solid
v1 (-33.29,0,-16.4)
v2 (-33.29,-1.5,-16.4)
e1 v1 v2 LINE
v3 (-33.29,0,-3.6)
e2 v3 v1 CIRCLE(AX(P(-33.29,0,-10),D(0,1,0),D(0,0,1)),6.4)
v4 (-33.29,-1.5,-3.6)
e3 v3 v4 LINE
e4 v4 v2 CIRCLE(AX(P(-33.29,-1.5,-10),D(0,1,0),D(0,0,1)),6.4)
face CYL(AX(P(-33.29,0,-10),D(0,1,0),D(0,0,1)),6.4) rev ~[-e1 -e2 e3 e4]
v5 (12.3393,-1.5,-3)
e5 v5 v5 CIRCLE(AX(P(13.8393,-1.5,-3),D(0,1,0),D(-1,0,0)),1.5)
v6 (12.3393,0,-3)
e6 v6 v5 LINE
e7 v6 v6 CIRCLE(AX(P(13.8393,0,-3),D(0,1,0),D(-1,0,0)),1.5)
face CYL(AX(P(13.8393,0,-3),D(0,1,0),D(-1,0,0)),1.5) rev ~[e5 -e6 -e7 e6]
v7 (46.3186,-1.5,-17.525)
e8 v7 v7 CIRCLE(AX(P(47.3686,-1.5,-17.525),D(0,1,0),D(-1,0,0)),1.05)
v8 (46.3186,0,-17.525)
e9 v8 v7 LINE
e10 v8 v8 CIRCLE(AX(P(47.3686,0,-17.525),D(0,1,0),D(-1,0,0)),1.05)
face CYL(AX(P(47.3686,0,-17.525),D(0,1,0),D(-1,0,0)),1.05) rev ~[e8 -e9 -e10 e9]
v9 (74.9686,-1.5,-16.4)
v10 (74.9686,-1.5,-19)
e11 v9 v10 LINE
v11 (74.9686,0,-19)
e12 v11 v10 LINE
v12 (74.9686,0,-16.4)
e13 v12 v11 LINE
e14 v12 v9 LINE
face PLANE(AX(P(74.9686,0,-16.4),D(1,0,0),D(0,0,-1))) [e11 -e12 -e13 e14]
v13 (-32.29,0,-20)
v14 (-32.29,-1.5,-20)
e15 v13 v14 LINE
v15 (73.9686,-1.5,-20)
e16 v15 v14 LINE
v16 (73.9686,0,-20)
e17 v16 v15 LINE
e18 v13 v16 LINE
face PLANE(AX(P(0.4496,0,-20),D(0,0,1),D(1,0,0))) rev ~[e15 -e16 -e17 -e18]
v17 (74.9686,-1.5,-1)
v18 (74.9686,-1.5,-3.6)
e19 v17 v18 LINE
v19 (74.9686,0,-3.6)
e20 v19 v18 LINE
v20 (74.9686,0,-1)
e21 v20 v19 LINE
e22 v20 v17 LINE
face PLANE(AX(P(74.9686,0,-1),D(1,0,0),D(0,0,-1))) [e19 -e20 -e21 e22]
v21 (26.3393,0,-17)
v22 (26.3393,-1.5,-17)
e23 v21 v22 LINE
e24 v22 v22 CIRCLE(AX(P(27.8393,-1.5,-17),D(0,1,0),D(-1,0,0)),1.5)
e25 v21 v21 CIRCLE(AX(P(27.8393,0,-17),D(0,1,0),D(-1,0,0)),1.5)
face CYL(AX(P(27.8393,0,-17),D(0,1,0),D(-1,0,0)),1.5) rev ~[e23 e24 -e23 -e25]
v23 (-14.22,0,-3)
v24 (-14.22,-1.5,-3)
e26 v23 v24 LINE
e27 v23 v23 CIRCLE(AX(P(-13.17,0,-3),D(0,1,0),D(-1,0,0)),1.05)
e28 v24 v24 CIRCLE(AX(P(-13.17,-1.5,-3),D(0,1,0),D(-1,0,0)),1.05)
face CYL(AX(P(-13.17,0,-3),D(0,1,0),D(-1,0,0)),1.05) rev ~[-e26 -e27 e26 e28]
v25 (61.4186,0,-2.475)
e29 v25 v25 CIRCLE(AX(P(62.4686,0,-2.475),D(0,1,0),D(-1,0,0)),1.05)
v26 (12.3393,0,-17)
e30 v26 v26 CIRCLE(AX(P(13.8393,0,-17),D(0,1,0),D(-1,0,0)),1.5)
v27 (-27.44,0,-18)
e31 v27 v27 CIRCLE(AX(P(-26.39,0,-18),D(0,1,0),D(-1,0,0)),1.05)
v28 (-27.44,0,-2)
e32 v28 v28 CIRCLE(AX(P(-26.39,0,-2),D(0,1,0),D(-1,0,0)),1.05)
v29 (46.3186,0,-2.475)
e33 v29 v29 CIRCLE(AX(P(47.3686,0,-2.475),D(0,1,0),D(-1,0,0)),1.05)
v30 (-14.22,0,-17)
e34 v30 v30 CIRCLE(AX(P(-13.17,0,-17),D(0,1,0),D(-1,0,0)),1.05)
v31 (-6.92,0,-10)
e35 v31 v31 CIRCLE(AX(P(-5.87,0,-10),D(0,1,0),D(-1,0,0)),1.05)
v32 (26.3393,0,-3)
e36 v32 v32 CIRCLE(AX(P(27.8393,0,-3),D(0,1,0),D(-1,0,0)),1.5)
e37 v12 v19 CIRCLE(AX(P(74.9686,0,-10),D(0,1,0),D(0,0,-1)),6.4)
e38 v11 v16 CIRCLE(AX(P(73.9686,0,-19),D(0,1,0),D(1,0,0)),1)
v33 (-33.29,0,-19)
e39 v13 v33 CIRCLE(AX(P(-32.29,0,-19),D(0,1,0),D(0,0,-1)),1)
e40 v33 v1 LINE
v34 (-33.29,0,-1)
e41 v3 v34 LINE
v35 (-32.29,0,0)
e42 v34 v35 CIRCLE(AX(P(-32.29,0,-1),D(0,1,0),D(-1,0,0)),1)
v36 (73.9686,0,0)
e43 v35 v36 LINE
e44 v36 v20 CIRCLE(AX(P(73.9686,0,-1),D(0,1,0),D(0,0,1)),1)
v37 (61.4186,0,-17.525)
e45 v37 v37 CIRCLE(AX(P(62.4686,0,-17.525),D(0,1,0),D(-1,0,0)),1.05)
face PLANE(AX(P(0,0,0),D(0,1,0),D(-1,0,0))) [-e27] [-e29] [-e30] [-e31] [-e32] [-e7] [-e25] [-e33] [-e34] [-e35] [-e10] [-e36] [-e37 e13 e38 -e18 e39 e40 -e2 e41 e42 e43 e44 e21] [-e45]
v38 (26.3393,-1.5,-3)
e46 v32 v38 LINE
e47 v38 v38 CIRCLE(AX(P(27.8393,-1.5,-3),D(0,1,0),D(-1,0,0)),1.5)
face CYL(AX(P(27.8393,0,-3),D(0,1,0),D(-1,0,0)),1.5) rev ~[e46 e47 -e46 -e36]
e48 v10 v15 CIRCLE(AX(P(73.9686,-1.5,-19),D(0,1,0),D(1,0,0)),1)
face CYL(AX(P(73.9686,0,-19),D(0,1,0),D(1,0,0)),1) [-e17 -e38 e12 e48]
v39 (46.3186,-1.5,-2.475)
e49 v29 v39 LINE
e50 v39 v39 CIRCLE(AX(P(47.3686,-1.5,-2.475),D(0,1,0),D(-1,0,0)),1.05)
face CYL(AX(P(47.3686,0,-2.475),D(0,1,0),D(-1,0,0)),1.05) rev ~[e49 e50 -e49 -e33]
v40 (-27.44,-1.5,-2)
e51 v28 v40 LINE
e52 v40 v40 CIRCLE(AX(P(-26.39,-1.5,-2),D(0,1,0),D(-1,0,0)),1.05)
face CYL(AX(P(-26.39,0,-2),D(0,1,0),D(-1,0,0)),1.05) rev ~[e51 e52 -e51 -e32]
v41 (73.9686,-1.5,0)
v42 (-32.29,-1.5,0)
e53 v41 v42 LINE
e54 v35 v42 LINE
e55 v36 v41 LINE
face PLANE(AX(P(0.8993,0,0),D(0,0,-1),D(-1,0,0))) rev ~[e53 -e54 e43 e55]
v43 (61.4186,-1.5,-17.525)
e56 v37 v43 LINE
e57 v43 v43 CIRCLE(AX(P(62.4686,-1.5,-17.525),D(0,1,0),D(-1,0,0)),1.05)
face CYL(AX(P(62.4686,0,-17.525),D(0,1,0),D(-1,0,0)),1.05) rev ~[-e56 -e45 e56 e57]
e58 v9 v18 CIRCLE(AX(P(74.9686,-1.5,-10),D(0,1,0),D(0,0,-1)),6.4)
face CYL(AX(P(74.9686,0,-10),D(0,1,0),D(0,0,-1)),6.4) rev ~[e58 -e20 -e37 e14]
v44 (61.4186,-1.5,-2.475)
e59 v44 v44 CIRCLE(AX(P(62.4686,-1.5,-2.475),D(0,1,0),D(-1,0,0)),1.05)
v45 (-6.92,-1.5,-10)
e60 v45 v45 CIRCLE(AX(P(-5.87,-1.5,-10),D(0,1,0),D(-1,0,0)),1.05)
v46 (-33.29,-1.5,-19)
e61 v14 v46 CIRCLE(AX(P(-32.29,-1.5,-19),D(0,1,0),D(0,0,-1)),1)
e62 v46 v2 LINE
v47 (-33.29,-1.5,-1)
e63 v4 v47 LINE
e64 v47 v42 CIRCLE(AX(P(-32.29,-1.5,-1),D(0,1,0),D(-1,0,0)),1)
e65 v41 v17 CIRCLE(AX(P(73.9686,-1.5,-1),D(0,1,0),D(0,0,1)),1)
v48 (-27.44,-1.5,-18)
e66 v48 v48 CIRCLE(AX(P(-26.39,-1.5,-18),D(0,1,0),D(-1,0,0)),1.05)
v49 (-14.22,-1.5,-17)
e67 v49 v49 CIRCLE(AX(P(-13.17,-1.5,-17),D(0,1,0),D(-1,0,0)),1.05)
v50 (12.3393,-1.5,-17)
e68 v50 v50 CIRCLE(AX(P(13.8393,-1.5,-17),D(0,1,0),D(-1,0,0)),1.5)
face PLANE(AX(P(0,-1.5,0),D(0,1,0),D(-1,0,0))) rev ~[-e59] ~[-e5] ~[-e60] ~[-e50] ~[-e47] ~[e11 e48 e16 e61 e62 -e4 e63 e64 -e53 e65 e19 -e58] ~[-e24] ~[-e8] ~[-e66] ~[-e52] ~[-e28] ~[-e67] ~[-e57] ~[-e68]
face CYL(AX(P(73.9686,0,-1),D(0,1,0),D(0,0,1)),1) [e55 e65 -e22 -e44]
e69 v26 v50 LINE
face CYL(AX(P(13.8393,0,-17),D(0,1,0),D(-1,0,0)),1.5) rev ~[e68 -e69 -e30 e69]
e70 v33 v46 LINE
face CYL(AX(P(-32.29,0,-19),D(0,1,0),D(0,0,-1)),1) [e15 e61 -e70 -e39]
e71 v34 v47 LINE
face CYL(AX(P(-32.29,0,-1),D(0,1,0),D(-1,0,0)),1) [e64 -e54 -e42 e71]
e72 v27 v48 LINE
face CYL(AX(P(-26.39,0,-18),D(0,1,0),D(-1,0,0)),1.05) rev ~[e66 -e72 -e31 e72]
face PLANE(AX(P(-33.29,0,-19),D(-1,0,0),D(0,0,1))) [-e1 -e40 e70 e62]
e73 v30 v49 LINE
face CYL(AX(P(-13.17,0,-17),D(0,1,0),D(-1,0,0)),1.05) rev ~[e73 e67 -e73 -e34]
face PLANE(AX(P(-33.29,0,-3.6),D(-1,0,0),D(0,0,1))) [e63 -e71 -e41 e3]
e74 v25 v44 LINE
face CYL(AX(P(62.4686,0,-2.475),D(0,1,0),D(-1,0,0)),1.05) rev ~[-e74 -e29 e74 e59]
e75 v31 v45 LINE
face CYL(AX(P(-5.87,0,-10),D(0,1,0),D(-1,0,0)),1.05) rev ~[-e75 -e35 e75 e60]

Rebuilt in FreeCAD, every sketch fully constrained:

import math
import FreeCAD as App
import Part
import Sketcher

V = App.Vector
Q = App.Units.Quantity

doc = App.newDocument("Part")
body = doc.addObject("PartDesign::Body", "Body")

# Sketch on XZ plane
sketch1 = doc.addObject("Sketcher::SketchObject", "Sketch")
body.addObject(sketch1)
sketch1.AttachmentSupport = (doc.XZ_Plane, [""])
sketch1.MapMode = "FlatFace"
sketch1.addGeometry([
    Part.ArcOfCircle(Part.Circle(V(-32.29, -19, 0), V(0, 0, 1), 1), math.radians(180), math.radians(270)),  # 0
    Part.LineSegment(V(-33.29, -19, 0), V(-33.29, -16.4, 0)),  # 1
    Part.ArcOfCircle(Part.Circle(V(-33.29, -10, 0), V(0, 0, 1), 6.4), math.radians(-90), math.radians(90)),  # 2
    Part.LineSegment(V(-33.29, -3.6, 0), V(-33.29, -1, 0)),  # 3
    Part.ArcOfCircle(Part.Circle(V(-32.29, -1, 0), V(0, 0, 1), 1), math.radians(90), math.radians(180)),  # 4
    Part.LineSegment(V(-32.29, 0, 0), V(73.9686, 0, 0)),  # 5
    Part.ArcOfCircle(Part.Circle(V(73.9686, -1, 0), V(0, 0, 1), 1), math.radians(0), math.radians(90)),  # 6
    Part.LineSegment(V(74.9686, -1, 0), V(74.9686, -3.6, 0)),  # 7
    Part.ArcOfCircle(Part.Circle(V(74.9686, -10, 0), V(0, 0, 1), 6.4), math.radians(90), math.radians(270)),  # 8
    Part.LineSegment(V(74.9686, -16.4, 0), V(74.9686, -19, 0)),  # 9
    Part.ArcOfCircle(Part.Circle(V(73.9686, -19, 0), V(0, 0, 1), 1), math.radians(-90), math.radians(0)),  # 10
    Part.LineSegment(V(73.9686, -20, 0), V(-32.29, -20, 0)),  # 11
    Part.Circle(V(13.8393, -3, 0), V(0, 0, 1), 1.5),  # 12
    Part.Circle(V(27.8393, -17, 0), V(0, 0, 1), 1.5),  # 13
    Part.Circle(V(13.8393, -17, 0), V(0, 0, 1), 1.5),  # 14
    Part.Circle(V(27.8393, -3, 0), V(0, 0, 1), 1.5),  # 15
    Part.Circle(V(-26.39, -2, 0), V(0, 0, 1), 1.05),  # 16
    Part.Circle(V(-26.39, -18, 0), V(0, 0, 1), 1.05),  # 17
    Part.Circle(V(-13.17, -17, 0), V(0, 0, 1), 1.05),  # 18
    Part.Circle(V(-5.87, -10, 0), V(0, 0, 1), 1.05),  # 19
    Part.Circle(V(-13.17, -3, 0), V(0, 0, 1), 1.05),  # 20
    Part.Circle(V(47.3686, -2.475, 0), V(0, 0, 1), 1.05),  # 21
    Part.Circle(V(62.4686, -17.525, 0), V(0, 0, 1), 1.05),  # 22
    Part.Circle(V(47.3686, -17.525, 0), V(0, 0, 1), 1.05),  # 23
    Part.Circle(V(62.4686, -2.475, 0), V(0, 0, 1), 1.05),  # 24
], False)
sketch1.addConstraint([
    Sketcher.Constraint("Tangent", 0, 1, 1, 1),
    Sketcher.Constraint("Coincident", 1, 2, 2, 1),
    Sketcher.Constraint("Coincident", 2, 2, 3, 1),
    Sketcher.Constraint("Tangent", 3, 2, 4, 2),
    Sketcher.Constraint("Tangent", 4, 1, 5, 1),
    Sketcher.Constraint("Tangent", 5, 2, 6, 2),
    Sketcher.Constraint("Tangent", 6, 1, 7, 1),
    Sketcher.Constraint("Coincident", 7, 2, 8, 1),
    Sketcher.Constraint("Coincident", 8, 2, 9, 1),
    Sketcher.Constraint("Tangent", 9, 2, 10, 2),
    Sketcher.Constraint("Tangent", 10, 1, 11, 1),
    Sketcher.Constraint("Tangent", 11, 2, 0, 2),
    Sketcher.Constraint("Vertical", 1),
    Sketcher.Constraint("Vertical", 3),
    Sketcher.Constraint("Horizontal", 5),
    Sketcher.Constraint("Vertical", 7),
    Sketcher.Constraint("Vertical", 9),
    Sketcher.Constraint("Horizontal", 11),
    Sketcher.Constraint("Equal", 0, 4),
    Sketcher.Constraint("Equal", 4, 6),
    Sketcher.Constraint("Equal", 2, 8),
    Sketcher.Constraint("Equal", 6, 10),
    Sketcher.Constraint("Equal", 12, 13),
    Sketcher.Constraint("Equal", 13, 14),
    Sketcher.Constraint("Equal", 14, 15),
    Sketcher.Constraint("Equal", 16, 17),
    Sketcher.Constraint("Equal", 17, 18),
    Sketcher.Constraint("Equal", 18, 19),
    Sketcher.Constraint("Equal", 19, 20),
    Sketcher.Constraint("Equal", 20, 21),
    Sketcher.Constraint("Equal", 21, 22),
    Sketcher.Constraint("Equal", 22, 23),
    Sketcher.Constraint("Equal", 23, 24),
    Sketcher.Constraint("PointOnObject", 4, 1, -1),
    Sketcher.Constraint("Horizontal", 2, 3, 8, 3),
    Sketcher.Constraint("Horizontal", 13, 3, 14, 3),
    Sketcher.Constraint("Horizontal", 12, 3, 15, 3),
    Sketcher.Constraint("Horizontal", 14, 3, 18, 3),
    Sketcher.Constraint("Horizontal", 8, 3, 19, 3),
    Sketcher.Constraint("Horizontal", 15, 3, 20, 3),
    Sketcher.Constraint("Horizontal", 22, 3, 23, 3),
    Sketcher.Constraint("Horizontal", 21, 3, 24, 3),
    Sketcher.Constraint("Vertical", 0, 3, 4, 3),
    Sketcher.Constraint("Vertical", 6, 3, 10, 3),
    Sketcher.Constraint("Vertical", 12, 3, 14, 3),
    Sketcher.Constraint("Vertical", 13, 3, 15, 3),
    Sketcher.Constraint("Vertical", 16, 3, 17, 3),
    Sketcher.Constraint("Vertical", 18, 3, 20, 3),
    Sketcher.Constraint("Vertical", 21, 3, 23, 3),
    Sketcher.Constraint("Vertical", 22, 3, 24, 3),
    Sketcher.Constraint("Vertical", 2, 3, 0, 1),
    Sketcher.Constraint("Vertical", 8, 3, 6, 1),
    Sketcher.Constraint("Equal", 1, 3),
    Sketcher.Constraint("Diameter", 12, Q("3 mm")),
    Sketcher.Constraint("Radius", 0, Q("1 mm")),
    Sketcher.Constraint("Diameter", 16, Q("2.1 mm")),
    Sketcher.Constraint("Radius", 2, Q("6.4 mm")),
    Sketcher.Constraint("DistanceY", 1, 1, 1, 2, Q("2.6 mm")),
    Sketcher.Constraint("DistanceY", 12, 3, -1, 1, Q("3 mm")),
    Sketcher.Constraint("DistanceY", 13, 3, -1, 1, Q("17 mm")),
    Sketcher.Constraint("DistanceY", 16, 3, -1, 1, Q("2 mm")),
    Sketcher.Constraint("DistanceY", 17, 3, -1, 1, Q("18 mm")),
    Sketcher.Constraint("DistanceX", 12, 3, 13, 3, Q("14 mm")),
    Sketcher.Constraint("DistanceX", 4, 3, 16, 3, Q("5.9 mm")),
    Sketcher.Constraint("DistanceX", 18, 3, 19, 3, Q("7.3 mm")),
    Sketcher.Constraint("DistanceX", 21, 3, 6, 3, Q("26.6 mm")),
    Sketcher.Constraint("DistanceX", 22, 3, 10, 3, Q("11.5 mm")),
    Sketcher.Constraint("DistanceX", 0, 3, -1, 1, Q("32.29 mm")),
    Sketcher.Constraint("DistanceX", 18, 3, -1, 1, Q("13.17 mm")),
    Sketcher.Constraint("DistanceY", 22, 3, 21, 3, Q("15.05 mm")),
    Sketcher.Constraint("DistanceX", 5, 1, 5, 2, Q("106.2586 mm")),
    Sketcher.Constraint("DistanceY", 21, 3, -1, 1, Q("2.475 mm")),
    Sketcher.Constraint("DistanceX", -1, 1, 12, 3, Q("13.8393 mm")),
])
pad1 = doc.addObject("PartDesign::Pad", "Pad")
body.addObject(pad1)
pad1.Profile = sketch1
pad1.Length = 1.5

doc.recompute()
